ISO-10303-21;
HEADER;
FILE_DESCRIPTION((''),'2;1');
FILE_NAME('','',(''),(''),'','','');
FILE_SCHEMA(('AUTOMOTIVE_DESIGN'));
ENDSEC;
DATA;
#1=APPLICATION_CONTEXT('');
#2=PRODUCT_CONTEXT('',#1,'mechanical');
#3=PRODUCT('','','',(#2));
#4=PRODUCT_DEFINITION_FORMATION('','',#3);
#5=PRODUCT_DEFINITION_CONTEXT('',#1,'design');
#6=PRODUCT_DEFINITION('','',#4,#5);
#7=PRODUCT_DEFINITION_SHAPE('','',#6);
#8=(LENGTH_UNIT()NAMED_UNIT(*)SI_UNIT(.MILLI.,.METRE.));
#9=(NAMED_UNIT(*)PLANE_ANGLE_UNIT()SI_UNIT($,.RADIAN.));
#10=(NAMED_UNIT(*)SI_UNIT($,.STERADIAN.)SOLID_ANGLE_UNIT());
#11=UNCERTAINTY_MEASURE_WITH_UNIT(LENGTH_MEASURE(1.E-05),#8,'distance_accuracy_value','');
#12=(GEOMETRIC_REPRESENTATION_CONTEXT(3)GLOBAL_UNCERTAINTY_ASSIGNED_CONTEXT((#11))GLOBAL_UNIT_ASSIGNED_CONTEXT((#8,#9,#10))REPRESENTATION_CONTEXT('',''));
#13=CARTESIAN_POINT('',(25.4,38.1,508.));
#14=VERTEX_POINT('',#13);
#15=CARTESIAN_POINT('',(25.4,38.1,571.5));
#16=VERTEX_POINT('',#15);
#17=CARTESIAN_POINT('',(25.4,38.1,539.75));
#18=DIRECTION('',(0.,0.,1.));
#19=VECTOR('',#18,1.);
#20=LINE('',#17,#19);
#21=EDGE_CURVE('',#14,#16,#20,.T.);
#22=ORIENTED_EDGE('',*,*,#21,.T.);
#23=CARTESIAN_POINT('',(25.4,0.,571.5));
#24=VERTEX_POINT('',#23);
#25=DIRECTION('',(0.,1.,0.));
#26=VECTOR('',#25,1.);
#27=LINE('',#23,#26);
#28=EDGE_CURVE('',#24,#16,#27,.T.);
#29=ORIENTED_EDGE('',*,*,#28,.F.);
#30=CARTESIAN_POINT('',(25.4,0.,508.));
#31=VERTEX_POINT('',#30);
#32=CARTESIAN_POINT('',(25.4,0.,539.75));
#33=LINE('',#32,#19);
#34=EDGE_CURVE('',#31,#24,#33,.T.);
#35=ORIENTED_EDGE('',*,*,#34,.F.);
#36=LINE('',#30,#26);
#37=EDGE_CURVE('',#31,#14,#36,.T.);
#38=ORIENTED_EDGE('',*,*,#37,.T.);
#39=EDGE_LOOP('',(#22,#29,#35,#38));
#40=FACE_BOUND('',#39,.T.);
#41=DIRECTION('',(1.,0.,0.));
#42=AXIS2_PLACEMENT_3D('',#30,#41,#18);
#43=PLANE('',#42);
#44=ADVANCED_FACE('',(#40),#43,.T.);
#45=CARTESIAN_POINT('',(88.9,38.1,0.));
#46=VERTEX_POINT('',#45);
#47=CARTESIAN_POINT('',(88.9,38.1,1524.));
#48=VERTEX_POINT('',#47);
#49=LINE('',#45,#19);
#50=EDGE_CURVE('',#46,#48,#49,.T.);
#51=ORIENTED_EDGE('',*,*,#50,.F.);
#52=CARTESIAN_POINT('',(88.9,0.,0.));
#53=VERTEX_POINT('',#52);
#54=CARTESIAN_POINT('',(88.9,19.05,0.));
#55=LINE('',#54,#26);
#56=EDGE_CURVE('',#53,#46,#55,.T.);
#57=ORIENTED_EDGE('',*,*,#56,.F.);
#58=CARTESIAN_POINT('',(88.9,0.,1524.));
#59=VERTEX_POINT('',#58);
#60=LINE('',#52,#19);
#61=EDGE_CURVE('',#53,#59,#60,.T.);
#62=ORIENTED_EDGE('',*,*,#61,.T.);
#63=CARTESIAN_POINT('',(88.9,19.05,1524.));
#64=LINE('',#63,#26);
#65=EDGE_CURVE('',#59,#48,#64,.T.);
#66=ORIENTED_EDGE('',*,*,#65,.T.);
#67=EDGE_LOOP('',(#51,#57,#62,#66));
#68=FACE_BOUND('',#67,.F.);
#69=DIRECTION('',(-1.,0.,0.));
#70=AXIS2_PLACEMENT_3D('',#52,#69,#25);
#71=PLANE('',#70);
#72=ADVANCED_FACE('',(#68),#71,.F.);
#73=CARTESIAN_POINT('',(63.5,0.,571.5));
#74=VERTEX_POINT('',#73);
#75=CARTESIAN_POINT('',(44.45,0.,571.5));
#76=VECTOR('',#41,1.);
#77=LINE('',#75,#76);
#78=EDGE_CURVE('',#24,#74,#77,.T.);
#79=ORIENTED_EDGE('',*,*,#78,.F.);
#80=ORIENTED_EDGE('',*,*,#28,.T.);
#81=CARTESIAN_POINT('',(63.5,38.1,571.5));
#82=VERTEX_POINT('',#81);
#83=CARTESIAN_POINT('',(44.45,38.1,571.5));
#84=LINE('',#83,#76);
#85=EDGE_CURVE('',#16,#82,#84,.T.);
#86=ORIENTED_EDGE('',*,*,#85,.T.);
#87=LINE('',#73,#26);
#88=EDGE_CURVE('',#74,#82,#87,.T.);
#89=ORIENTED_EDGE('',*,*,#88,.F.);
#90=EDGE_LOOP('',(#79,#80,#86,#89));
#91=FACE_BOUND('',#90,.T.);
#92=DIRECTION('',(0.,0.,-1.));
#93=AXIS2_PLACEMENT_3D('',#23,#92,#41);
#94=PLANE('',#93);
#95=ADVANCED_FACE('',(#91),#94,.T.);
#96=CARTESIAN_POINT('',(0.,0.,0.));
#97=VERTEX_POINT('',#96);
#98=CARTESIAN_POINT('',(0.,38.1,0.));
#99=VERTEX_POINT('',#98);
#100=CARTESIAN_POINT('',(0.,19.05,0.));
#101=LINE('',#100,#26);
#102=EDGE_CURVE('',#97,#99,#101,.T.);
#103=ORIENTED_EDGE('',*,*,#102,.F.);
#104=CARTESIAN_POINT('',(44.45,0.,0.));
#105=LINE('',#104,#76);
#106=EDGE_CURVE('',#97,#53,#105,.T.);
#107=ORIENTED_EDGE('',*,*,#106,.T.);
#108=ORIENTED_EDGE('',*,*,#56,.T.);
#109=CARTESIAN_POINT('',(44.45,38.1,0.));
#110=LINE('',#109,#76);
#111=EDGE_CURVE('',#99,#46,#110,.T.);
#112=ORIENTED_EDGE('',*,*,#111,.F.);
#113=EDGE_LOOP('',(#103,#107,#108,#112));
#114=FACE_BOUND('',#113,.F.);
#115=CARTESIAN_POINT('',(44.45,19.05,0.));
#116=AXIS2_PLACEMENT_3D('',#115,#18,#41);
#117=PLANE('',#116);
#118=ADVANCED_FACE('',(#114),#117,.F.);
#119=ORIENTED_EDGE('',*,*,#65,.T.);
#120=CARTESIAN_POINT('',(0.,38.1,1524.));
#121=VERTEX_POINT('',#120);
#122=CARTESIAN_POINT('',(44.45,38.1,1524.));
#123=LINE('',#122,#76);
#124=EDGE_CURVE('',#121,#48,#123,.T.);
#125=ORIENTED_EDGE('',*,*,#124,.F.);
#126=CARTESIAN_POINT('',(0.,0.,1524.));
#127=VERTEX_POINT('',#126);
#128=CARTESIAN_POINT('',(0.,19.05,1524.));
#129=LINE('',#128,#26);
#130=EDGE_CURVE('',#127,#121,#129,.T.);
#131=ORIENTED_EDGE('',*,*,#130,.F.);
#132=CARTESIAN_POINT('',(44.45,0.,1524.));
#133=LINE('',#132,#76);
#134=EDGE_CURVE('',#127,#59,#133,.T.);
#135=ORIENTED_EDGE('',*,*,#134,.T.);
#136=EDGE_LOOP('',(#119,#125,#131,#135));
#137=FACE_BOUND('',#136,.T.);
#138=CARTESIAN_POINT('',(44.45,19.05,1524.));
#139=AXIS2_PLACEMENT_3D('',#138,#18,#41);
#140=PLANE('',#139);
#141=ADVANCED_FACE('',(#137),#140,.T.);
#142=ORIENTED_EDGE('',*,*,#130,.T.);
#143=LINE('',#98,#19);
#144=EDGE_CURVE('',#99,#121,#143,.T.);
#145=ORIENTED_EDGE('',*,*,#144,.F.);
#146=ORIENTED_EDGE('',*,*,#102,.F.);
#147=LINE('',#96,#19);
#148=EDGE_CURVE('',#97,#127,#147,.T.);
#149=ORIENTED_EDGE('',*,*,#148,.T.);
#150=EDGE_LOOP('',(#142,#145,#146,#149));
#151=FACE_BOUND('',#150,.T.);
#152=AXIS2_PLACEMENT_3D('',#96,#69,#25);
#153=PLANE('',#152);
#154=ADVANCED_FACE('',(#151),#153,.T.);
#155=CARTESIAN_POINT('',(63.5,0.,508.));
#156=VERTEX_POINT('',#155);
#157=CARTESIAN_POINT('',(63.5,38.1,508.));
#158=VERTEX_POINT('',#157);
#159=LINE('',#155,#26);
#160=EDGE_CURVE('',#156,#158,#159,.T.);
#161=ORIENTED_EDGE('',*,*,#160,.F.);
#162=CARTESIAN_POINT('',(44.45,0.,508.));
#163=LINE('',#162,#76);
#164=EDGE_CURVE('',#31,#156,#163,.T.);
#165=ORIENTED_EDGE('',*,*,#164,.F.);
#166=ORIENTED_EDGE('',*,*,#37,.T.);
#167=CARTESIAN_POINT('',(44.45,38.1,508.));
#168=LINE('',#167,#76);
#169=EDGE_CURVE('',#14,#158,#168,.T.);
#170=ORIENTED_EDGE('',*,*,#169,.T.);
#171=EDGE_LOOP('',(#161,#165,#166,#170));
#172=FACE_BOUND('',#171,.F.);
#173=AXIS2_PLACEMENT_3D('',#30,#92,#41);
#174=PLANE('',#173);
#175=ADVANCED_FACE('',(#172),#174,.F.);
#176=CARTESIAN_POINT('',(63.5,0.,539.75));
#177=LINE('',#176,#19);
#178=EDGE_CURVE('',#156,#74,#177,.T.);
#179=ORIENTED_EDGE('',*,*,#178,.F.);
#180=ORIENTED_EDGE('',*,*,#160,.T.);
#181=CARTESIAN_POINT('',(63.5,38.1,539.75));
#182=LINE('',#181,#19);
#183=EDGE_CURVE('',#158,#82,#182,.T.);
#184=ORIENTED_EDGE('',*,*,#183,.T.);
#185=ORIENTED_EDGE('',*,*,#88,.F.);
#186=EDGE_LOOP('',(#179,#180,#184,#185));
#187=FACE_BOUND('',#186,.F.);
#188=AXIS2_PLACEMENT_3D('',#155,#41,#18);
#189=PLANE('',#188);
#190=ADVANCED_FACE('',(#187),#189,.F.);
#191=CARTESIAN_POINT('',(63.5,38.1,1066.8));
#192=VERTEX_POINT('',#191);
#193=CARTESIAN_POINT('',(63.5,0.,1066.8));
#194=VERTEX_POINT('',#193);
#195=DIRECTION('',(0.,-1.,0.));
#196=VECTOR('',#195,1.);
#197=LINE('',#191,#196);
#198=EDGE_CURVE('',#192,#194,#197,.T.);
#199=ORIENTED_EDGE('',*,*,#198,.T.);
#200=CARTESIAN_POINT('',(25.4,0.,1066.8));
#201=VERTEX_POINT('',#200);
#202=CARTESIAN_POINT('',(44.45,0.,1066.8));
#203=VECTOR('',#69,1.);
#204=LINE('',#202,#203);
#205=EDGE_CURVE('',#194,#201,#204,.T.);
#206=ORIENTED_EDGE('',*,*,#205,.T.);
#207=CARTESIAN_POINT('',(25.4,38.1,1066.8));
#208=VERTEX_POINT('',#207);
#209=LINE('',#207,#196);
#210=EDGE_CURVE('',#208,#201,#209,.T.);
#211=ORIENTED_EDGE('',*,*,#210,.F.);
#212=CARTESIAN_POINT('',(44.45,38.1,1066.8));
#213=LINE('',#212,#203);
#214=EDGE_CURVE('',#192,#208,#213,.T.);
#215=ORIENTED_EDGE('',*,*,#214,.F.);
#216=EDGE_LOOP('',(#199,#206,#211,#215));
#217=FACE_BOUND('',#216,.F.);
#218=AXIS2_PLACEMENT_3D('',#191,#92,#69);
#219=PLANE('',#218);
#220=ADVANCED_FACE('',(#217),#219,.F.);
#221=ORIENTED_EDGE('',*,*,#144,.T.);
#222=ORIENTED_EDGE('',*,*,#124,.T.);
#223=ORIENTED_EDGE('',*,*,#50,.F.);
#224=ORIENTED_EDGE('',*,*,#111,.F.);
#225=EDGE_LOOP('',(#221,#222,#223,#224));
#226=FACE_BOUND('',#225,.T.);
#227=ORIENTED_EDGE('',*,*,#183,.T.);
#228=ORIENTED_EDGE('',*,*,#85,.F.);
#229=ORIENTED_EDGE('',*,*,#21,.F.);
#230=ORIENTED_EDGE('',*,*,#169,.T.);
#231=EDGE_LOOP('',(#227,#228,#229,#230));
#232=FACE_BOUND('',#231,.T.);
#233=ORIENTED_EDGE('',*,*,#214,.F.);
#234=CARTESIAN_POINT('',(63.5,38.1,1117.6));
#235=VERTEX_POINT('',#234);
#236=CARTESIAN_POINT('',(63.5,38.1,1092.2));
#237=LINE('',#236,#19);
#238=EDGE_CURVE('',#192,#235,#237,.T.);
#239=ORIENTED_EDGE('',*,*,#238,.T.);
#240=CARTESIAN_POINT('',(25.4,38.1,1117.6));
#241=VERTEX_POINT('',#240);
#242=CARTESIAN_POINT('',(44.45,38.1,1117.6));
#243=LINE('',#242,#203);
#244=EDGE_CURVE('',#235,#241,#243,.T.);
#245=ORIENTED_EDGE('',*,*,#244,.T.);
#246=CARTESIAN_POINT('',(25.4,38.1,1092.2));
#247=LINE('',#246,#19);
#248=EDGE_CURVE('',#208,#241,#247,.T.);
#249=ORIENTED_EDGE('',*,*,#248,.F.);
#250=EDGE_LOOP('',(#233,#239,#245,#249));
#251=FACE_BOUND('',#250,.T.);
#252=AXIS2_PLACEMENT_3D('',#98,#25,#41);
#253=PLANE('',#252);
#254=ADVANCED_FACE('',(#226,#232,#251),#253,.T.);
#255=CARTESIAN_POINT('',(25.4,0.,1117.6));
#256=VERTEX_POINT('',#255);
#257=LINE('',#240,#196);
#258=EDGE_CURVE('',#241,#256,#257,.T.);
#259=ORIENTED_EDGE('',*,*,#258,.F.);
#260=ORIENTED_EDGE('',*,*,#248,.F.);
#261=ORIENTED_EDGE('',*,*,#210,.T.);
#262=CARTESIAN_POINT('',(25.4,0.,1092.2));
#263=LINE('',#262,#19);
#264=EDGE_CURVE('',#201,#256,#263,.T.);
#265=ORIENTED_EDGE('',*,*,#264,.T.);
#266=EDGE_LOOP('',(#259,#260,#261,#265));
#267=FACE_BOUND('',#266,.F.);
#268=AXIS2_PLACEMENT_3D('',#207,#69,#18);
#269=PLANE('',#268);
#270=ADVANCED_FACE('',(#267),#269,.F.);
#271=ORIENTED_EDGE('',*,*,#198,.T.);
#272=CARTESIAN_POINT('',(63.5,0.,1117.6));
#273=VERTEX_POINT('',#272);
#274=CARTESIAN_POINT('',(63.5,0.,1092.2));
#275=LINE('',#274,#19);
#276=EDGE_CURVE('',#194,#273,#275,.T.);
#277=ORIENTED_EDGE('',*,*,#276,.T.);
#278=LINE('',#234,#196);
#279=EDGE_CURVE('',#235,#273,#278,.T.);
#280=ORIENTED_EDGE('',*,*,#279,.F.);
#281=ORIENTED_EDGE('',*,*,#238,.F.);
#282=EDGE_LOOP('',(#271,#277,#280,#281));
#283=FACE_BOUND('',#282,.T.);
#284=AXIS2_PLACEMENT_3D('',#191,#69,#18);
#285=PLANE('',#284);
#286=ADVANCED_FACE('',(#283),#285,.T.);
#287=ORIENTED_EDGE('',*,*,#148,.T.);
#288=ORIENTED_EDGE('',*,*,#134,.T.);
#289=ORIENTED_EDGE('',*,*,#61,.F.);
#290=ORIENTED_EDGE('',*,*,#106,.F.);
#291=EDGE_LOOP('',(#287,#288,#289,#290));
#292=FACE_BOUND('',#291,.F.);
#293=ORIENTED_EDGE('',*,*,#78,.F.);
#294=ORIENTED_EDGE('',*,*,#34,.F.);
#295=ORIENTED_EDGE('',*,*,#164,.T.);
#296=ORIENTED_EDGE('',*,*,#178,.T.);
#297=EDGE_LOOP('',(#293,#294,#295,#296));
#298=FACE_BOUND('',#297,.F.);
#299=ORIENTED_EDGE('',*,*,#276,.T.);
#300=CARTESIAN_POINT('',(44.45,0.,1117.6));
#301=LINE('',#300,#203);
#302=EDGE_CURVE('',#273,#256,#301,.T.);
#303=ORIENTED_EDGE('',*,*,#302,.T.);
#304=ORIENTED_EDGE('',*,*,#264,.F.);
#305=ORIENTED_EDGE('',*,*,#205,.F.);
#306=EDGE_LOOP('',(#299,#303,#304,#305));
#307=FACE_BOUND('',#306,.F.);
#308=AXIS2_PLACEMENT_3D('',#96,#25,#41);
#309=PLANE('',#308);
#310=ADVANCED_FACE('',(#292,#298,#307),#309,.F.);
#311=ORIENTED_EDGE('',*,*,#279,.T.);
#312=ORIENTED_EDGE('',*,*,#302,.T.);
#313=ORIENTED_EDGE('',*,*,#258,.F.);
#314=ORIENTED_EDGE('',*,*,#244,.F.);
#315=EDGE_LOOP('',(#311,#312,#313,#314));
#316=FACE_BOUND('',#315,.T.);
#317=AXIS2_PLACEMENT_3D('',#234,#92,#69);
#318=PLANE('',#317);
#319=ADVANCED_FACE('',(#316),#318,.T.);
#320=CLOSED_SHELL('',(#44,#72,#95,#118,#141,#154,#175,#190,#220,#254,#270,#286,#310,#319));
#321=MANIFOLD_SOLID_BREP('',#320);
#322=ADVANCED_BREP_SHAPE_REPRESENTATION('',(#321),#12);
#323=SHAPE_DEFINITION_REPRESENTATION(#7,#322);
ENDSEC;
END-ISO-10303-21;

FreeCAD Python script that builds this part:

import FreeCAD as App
import Part
import Sketcher

V = App.Vector
Q = App.Units.Quantity

doc = App.newDocument("Part")
body = doc.addObject("PartDesign::Body", "Body")

# Sketch on XY plane
sketch1 = body.newObject("Sketcher::SketchObject", "Sketch")
sketch1.AttachmentSupport = (doc.getObject("XY_Plane"), [""])
sketch1.MapMode = "FlatFace"
sketch1.addGeometry([
    Part.LineSegment(V(0, 38.1, 0), V(0, 0, 0)),
    Part.LineSegment(V(0, 0, 0), V(88.9, 0, 0)),
    Part.LineSegment(V(88.9, 0, 0), V(88.9, 38.1, 0)),
    Part.LineSegment(V(88.9, 38.1, 0), V(0, 38.1, 0)),
], False)
sketch1.addConstraint([
    Sketcher.Constraint("Coincident", 0, 2, 1, 1),
    Sketcher.Constraint("Coincident", 1, 2, 2, 1),
    Sketcher.Constraint("Coincident", 2, 2, 3, 1),
    Sketcher.Constraint("Coincident", 3, 2, 0, 1),
    Sketcher.Constraint("Vertical", 0),
    Sketcher.Constraint("Horizontal", 1),
    Sketcher.Constraint("Vertical", 2),
    Sketcher.Constraint("Horizontal", 3),
    Sketcher.Constraint("Coincident", 0, 2, -1, 1),
    Sketcher.Constraint("DistanceX", 1, 1, 1, 2, Q("3.5 in")),
    Sketcher.Constraint("DistanceY", 0, 2, 0, 1, Q("1.5 in")),
])
pad1 = body.newObject("PartDesign::Pad", "Pad")
pad1.Profile = sketch1
pad1.Length = Q("60 in")

# Sketch on XZ plane
sketch2 = body.newObject("Sketcher::SketchObject", "Sketch001")
sketch2.AttachmentSupport = (doc.getObject("XZ_Plane"), [""])
sketch2.MapMode = "FlatFace"
sketch2.AttachmentOffset = App.Placement(V(0, 0, -1.5 * 25.4), App.Rotation())
sketch2.addGeometry([
    Part.LineSegment(V(63.5, 1117.6, 0), V(63.5, 1066.8, 0)),
    Part.LineSegment(V(63.5, 1066.8, 0), V(25.4, 1066.8, 0)),
    Part.LineSegment(V(25.4, 1066.8, 0), V(25.4, 1117.6, 0)),
    Part.LineSegment(V(25.4, 1117.6, 0), V(63.5, 1117.6, 0)),
], False)
sketch2.addConstraint([
    Sketcher.Constraint("Coincident", 0, 2, 1, 1),
    Sketcher.Constraint("Coincident", 1, 2, 2, 1),
    Sketcher.Constraint("Coincident", 2, 2, 3, 1),
    Sketcher.Constraint("Coincident", 3, 2, 0, 1),
    Sketcher.Constraint("Vertical", 0),
    Sketcher.Constraint("Horizontal", 1),
    Sketcher.Constraint("Vertical", 2),
    Sketcher.Constraint("Horizontal", 3),
    Sketcher.Constraint("DistanceY", 0, 2, 0, 1, Q("2 in")),
    Sketcher.Constraint("DistanceX", 1, 2, 1, 1, Q("1.5 in")),
    Sketcher.Constraint("DistanceY", -1, 1, 0, 2, Q("42 in")),
    Sketcher.Constraint("DistanceX", -1, 1, 1, 2, Q("1 in")),
])
pocket1 = body.newObject("PartDesign::Pocket", "Pocket")
pocket1.Profile = sketch2
pocket1.Type = "ThroughAll"
pocket1.Reversed = True

# Sketch on XZ plane
sketch3 = body.newObject("Sketcher::SketchObject", "Sketch002")
sketch3.AttachmentSupport = (doc.getObject("XZ_Plane"), [""])
sketch3.MapMode = "FlatFace"
sketch3.addGeometry([
    Part.LineSegment(V(25.4, 571.5, 0), V(25.4, 508, 0)),
    Part.LineSegment(V(25.4, 508, 0), V(63.5, 508, 0)),
    Part.LineSegment(V(63.5, 508, 0), V(63.5, 571.5, 0)),
    Part.LineSegment(V(63.5, 571.5, 0), V(25.4, 571.5, 0)),
], False)
sketch3.addConstraint([
    Sketcher.Constraint("Coincident", 0, 2, 1, 1),
    Sketcher.Constraint("Coincident", 1, 2, 2, 1),
    Sketcher.Constraint("Coincident", 2, 2, 3, 1),
    Sketcher.Constraint("Coincident", 3, 2, 0, 1),
    Sketcher.Constraint("Vertical", 0),
    Sketcher.Constraint("Horizontal", 1),
    Sketcher.Constraint("Vertical", 2),
    Sketcher.Constraint("Horizontal", 3),
    Sketcher.Constraint("DistanceX", 1, 1, 1, 2, Q("1.5 in")),
    Sketcher.Constraint("DistanceY", 0, 2, 0, 1, Q("2.5 in")),
    Sketcher.Constraint("DistanceX", -1, 1, 0, 2, Q("1 in")),
    Sketcher.Constraint("DistanceY", -1, 1, 0, 2, Q("20 in")),
])
pocket2 = body.newObject("PartDesign::Pocket", "Pocket001")
pocket2.Profile = sketch3
pocket2.Type = "ThroughAll"

doc.recompute()
